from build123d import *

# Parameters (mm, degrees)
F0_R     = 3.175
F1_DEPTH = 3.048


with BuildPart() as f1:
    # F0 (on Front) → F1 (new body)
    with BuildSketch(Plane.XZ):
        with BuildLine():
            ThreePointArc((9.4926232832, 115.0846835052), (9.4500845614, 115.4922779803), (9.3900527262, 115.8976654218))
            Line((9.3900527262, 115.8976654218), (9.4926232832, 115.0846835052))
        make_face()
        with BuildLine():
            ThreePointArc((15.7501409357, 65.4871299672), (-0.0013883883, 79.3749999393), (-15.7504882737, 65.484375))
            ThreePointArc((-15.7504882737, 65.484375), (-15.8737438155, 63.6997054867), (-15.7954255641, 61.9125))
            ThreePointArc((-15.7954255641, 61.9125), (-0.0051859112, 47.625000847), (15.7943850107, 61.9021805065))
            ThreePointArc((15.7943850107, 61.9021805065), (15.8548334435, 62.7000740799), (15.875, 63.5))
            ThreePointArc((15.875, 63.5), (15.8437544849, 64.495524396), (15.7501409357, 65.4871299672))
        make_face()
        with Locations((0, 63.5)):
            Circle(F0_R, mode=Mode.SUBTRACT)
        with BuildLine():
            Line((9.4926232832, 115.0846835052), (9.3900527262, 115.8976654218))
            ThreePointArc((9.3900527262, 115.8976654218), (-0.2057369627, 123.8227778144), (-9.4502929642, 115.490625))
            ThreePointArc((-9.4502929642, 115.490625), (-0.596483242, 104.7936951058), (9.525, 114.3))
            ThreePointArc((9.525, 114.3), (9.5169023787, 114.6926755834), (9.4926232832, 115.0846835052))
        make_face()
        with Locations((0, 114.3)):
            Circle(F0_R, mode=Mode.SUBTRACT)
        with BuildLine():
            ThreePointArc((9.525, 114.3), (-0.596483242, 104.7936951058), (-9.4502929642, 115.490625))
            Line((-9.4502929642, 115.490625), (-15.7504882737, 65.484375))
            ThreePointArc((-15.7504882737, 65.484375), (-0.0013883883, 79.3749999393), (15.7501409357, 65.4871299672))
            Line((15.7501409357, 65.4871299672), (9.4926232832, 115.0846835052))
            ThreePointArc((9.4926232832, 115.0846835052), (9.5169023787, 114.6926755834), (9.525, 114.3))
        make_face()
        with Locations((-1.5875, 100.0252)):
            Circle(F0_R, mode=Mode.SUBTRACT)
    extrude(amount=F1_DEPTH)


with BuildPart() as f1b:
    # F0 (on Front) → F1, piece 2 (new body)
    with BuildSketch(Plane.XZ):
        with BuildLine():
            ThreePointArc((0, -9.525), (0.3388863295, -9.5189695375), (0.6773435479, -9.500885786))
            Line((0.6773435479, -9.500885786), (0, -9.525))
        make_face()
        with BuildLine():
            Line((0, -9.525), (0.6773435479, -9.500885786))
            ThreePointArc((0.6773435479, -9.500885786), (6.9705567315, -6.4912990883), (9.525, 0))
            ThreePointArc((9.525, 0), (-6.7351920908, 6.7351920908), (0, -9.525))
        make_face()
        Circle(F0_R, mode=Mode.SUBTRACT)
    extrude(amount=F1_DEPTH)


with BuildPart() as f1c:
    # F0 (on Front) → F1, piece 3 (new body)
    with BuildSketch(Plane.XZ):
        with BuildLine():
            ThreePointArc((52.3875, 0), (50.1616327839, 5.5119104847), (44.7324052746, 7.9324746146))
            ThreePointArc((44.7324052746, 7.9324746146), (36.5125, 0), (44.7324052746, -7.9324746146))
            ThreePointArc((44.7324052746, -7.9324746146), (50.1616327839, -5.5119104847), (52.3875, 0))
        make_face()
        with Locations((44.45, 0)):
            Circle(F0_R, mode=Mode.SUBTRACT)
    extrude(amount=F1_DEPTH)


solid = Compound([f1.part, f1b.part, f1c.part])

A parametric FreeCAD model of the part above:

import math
import FreeCAD as App
import Part
import Sketcher

V = App.Vector
Q = App.Units.Quantity

doc = App.newDocument("Part")
body = doc.addObject("PartDesign::Body", "Body")

# Sketch on XZ plane
sketch1 = body.newObject("Sketcher::SketchObject", "Sketch")
sketch1.AttachmentSupport = (doc.getObject("XZ_Plane"), [""])
sketch1.MapMode = "FlatFace"
sketch1.addGeometry([
    Part.ArcOfCircle(Part.Circle(V(0, 114.3, 0), V(0, 0, 1), 9.5), math.radians(4.73), math.radians(9.66)),  # 0
    Part.ArcOfCircle(Part.Circle(V(0, 114.3, 0), V(0, 0, 1), 9.5), math.radians(10), math.radians(173)),  # 1
    Part.LineSegment(V(-9.5, 115.5, 0), V(-15.8, 65.5, 0)),  # 2
    Part.ArcOfCircle(Part.Circle(V(0, 63.5, 0), V(0, 0, 1), 15.9), math.radians(172.82), math.radians(185.74)),  # 3
    Part.ArcOfCircle(Part.Circle(V(0, 63.5, 0), V(0, 0, 1), 15.9), math.radians(-174), math.radians(-6)),  # 4
    Part.ArcOfCircle(Part.Circle(V(0, 63.5, 0), V(0, 0, 1), 15.9), math.radians(-5.78), math.radians(0)),  # 5
    Part.ArcOfCircle(Part.Circle(V(0, 63.5, 0), V(0, 0, 1), 15.9), math.radians(0), math.radians(7.19)),  # 6
    Part.LineSegment(V(15.8, 65.5, 0), V(9.5, 115.1, 0)),  # 7
    Part.Circle(V(0, 63.5, 0), V(0, 0, 1), 3.2),  # 8
    Part.Circle(V(-1.6, 100, 0), V(0, 0, 1), 3.2),  # 9
    Part.Circle(V(0, 114.3, 0), V(0, 0, 1), 3.2),  # 10
], False)
sketch1.addConstraint([
    Sketcher.Constraint("Tangent", 0, 2, 1, 1),
    Sketcher.Constraint("Tangent", 1, 2, 2, 1),
    Sketcher.Constraint("Tangent", 2, 2, 3, 1),
    Sketcher.Constraint("Tangent", 3, 2, 4, 1),
    Sketcher.Constraint("Tangent", 4, 2, 5, 1),
    Sketcher.Constraint("Tangent", 5, 2, 6, 1),
    Sketcher.Constraint("Tangent", 6, 2, 7, 1),
    Sketcher.Constraint("Coincident", 7, 2, 0, 1),
    Sketcher.Constraint("Coincident", 5, 3, 3, 3),
    Sketcher.Constraint("Coincident", 8, 3, 3, 3),
    Sketcher.Constraint("Coincident", 10, 3, 0, 3),
    Sketcher.Constraint("Equal", 0, 1),
    Sketcher.Constraint("Equal", 5, 6),
    Sketcher.Constraint("Equal", 8, 9),
    Sketcher.Constraint("Equal", 9, 10),
    Sketcher.Constraint("PointOnObject", 0, 3, -2),
    Sketcher.Constraint("PointOnObject", 3, 3, -2),
    Sketcher.Constraint("Horizontal", 8, 3, 5, 2),
    Sketcher.Constraint("Diameter", 8, Q("0.25 in")),
    Sketcher.Constraint("Radius", 0, Q("0.375 in")),
    Sketcher.Constraint("Radius", 3, Q("0.625 in")),
    Sketcher.Constraint("DistanceY", 3, 3, 0, 3, Q("2 in")),
    Sketcher.Constraint("DistanceY", -1, 1, 0, 3, Q("4.5 in")),
    Sketcher.Constraint("DistanceX", 9, 3, -1, 1, Q("0.0625 in")),
    Sketcher.Constraint("DistanceY", -1, 1, 9, 3, Q("3.938 in")),
    Sketcher.Constraint("DistanceY", -1, 1, 3, 2, Q("2.4375 in")),
    Sketcher.Constraint("DistanceY", -1, 1, 4, 2, Q("61.902181 mm")),
    Sketcher.Constraint("DistanceY", 1, 2, 0, 2, Q("0.40704 mm")),
    Sketcher.Constraint("DistanceX", 0, 2, 7, 2, Q("0.102571 mm")),
])
pad1 = body.newObject("PartDesign::Pad", "Pad")
pad1.Profile = sketch1
pad1.Length = Q("0.12 in")
body2 = doc.addObject("PartDesign::Body", "Body001")

# Sketch on XZ plane
sketch2 = body2.newObject("Sketcher::SketchObject", "Sketch001")
sketch2.AttachmentSupport = (doc.getObject("XZ_Plane001"), [""])
sketch2.MapMode = "FlatFace"
sketch2.addGeometry([
    Part.ArcOfCircle(Part.Circle(V(0, 0, 0), V(0, 0, 1), 9.5), math.radians(-90), math.radians(-85.92)),
    Part.ArcOfCircle(Part.Circle(V(0, 0, 0), V(0, 0, 1), 9.5), math.radians(-86), math.radians(0)),
    Part.ArcOfCircle(Part.Circle(V(0, 0, 0), V(0, 0, 1), 9.5), math.radians(0), math.radians(270)),
    Part.Circle(V(0, 0, 0), V(0, 0, 1), 3.2),
], False)
sketch2.addConstraint([
    Sketcher.Constraint("Tangent", 0, 2, 1, 1),
    Sketcher.Constraint("Tangent", 1, 2, 2, 1),
    Sketcher.Constraint("Tangent", 2, 2, 0, 1),
    Sketcher.Constraint("Coincident", 0, 3, -1, 1),
    Sketcher.Constraint("Coincident", 3, 3, -1, 1),
    Sketcher.Constraint("PointOnObject", 1, 2, -1),
    Sketcher.Constraint("PointOnObject", 2, 2, -2),
    Sketcher.Constraint("Diameter", 3, Q("0.25 in")),
    Sketcher.Constraint("Radius", 0, Q("0.375 in")),
    Sketcher.Constraint("DistanceX", -1, 1, 0, 2, Q("0.677344 mm")),
])
pad2 = body2.newObject("PartDesign::Pad", "Pad001")
pad2.Profile = sketch2
pad2.Length = Q("0.12 in")
body3 = doc.addObject("PartDesign::Body", "Body002")

# Sketch on XZ plane
sketch3 = body3.newObject("Sketcher::SketchObject", "Sketch002")
sketch3.AttachmentSupport = (doc.getObject("XZ_Plane002"), [""])
sketch3.MapMode = "FlatFace"
sketch3.addGeometry([
    Part.ArcOfCircle(Part.Circle(V(44.5, 0, 0), V(0, 0, 1), 7.9), math.radians(0), math.radians(88)),
    Part.ArcOfCircle(Part.Circle(V(44.5, 0, 0), V(0, 0, 1), 7.9), math.radians(88), math.radians(272)),
    Part.ArcOfCircle(Part.Circle(V(44.5, 0, 0), V(0, 0, 1), 7.9), math.radians(-88), math.radians(0)),
    Part.Circle(V(44.5, 0, 0), V(0, 0, 1), 3.2),
], False)
sketch3.addConstraint([
    Sketcher.Constraint("Tangent", 0, 2, 1, 1),
    Sketcher.Constraint("Tangent", 1, 2, 2, 1),
    Sketcher.Constraint("Tangent", 2, 2, 0, 1),
    Sketcher.Constraint("Coincident", 3, 3, 0, 3),
    Sketcher.Constraint("Symmetric", 0, 2, 1, 2, -1),
    Sketcher.Constraint("PointOnObject", 2, 2, -1),
    Sketcher.Constraint("Diameter", 3, Q("0.25 in")),
    Sketcher.Constraint("Radius", 0, Q("0.3125 in")),
    Sketcher.Constraint("DistanceX", -1, 1, 0, 3, Q("1.75 in")),
    Sketcher.Constraint("DistanceY", 1, 2, 0, 2, Q("15.864949 mm")),
])
pad3 = body3.newObject("PartDesign::Pad", "Pad002")
pad3.Profile = sketch3
pad3.Length = Q("0.12 in")

doc.recompute()
